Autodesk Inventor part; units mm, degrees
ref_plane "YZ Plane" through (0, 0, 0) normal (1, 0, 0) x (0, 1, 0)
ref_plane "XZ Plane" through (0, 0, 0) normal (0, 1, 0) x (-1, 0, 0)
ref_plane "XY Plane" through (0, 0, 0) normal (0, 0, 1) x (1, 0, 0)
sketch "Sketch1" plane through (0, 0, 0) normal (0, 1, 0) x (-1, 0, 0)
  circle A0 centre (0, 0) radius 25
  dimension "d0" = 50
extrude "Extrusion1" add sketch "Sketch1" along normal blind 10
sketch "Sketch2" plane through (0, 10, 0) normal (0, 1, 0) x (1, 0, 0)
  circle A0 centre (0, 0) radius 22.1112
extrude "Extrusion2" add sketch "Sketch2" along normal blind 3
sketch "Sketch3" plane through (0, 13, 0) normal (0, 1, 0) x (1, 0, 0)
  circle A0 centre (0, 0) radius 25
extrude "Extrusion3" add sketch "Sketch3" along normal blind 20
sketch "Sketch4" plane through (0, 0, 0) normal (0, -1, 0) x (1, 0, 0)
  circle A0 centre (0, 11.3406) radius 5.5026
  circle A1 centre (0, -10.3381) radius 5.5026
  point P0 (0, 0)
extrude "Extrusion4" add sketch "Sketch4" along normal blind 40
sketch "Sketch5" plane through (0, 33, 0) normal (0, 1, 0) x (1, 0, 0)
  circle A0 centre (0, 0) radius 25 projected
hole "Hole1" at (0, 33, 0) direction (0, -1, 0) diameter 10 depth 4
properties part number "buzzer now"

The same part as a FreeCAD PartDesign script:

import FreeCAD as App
import Part
import Sketcher

V = App.Vector
Q = App.Units.Quantity

doc = App.newDocument("Part")
body = doc.addObject("PartDesign::Body", "Body")

# Sketch on XZ plane
sketch1 = body.newObject("Sketcher::SketchObject", "Sketch")
sketch1.AttachmentSupport = (doc.getObject("XZ_Plane"), [""])
sketch1.MapMode = "FlatFace"
sketch1.addGeometry(Part.Circle(V(0, 0, 0), V(0, 0, 1), 25), False)
sketch1.addConstraint([
    Sketcher.Constraint("Coincident", 0, 3, -1, 1),
    Sketcher.Constraint("Diameter", 0, Q("50 mm")),
])
pad1 = body.newObject("PartDesign::Pad", "Pad")
pad1.Profile = sketch1
pad1.Length = 10
pad1.Reversed = True

# Sketch on XZ plane
sketch2 = body.newObject("Sketcher::SketchObject", "Sketch001")
sketch2.AttachmentSupport = (doc.getObject("XZ_Plane"), [""])
sketch2.MapMode = "FlatFace"
sketch2.AttachmentOffset = App.Placement(V(0, 0, -10), App.Rotation())
sketch2.addGeometry(Part.Circle(V(0, 0, 0), V(0, 0, 1), 22), False)
sketch2.addConstraint([
    Sketcher.Constraint("Coincident", 0, 3, -1, 1),
    Sketcher.Constraint("Diameter", 0, Q("44.2224 mm")),
])
pad2 = body.newObject("PartDesign::Pad", "Pad001")
pad2.Profile = sketch2
pad2.Length = 3
pad2.Reversed = True

# Sketch on XZ plane
sketch3 = body.newObject("Sketcher::SketchObject", "Sketch002")
sketch3.AttachmentSupport = (doc.getObject("XZ_Plane"), [""])
sketch3.MapMode = "FlatFace"
sketch3.AttachmentOffset = App.Placement(V(0, 0, -13), App.Rotation())
sketch3.addGeometry(Part.Circle(V(0, 0, 0), V(0, 0, 1), 25), False)
sketch3.addConstraint([
    Sketcher.Constraint("Coincident", 0, 3, -1, 1),
    Sketcher.Constraint("Diameter", 0, Q("50 mm")),
])
pad3 = body.newObject("PartDesign::Pad", "Pad002")
pad3.Profile = sketch3
pad3.Length = 20
pad3.Reversed = True

# Sketch on XZ plane
sketch4 = body.newObject("Sketcher::SketchObject", "Sketch003")
sketch4.AttachmentSupport = (doc.getObject("XZ_Plane"), [""])
sketch4.MapMode = "FlatFace"
sketch4.addGeometry([
    Part.Circle(V(0, 11, 0), V(0, 0, 1), 6),
    Part.Circle(V(0, -10, 0), V(0, 0, 1), 6),
], False)
sketch4.addConstraint([
    Sketcher.Constraint("Equal", 0, 1),
    Sketcher.Constraint("PointOnObject", 0, 3, -2),
    Sketcher.Constraint("PointOnObject", 1, 3, -2),
    Sketcher.Constraint("Diameter", 0, Q("11.0052 mm")),
    Sketcher.Constraint("DistanceY", 1, 3, -1, 1, Q("10.338 mm")),
    Sketcher.Constraint("DistanceY", -1, 1, 0, 3, Q("11.3406 mm")),
])
pad4 = body.newObject("PartDesign::Pad", "Pad003")
pad4.Profile = sketch4
pad4.Length = 40

# Sketch on XZ plane
sketch5 = body.newObject("Sketcher::SketchObject", "Sketch004")
sketch5.AttachmentSupport = (doc.getObject("XZ_Plane"), [""])
sketch5.MapMode = "FlatFace"
sketch5.AttachmentOffset = App.Placement(V(0, 0, -33), App.Rotation())
sketch5.addGeometry(Part.Circle(V(0, 0, 0), V(0, 0, 1), 5), False)
sketch5.addConstraint([
    Sketcher.Constraint("Coincident", 0, 3, -1, 1),
    Sketcher.Constraint("Diameter", 0, Q("10 mm")),
])
doc.recompute()
hole = body.newObject("PartDesign::Hole", "Hole")
hole.Profile = sketch5
hole.ThreadType = "None"
hole.Diameter = 10
hole.DepthType = "Dimension"
hole.Depth = 4
hole.DrillPoint = "Flat"
hole.Reversed = True

doc.recompute()
